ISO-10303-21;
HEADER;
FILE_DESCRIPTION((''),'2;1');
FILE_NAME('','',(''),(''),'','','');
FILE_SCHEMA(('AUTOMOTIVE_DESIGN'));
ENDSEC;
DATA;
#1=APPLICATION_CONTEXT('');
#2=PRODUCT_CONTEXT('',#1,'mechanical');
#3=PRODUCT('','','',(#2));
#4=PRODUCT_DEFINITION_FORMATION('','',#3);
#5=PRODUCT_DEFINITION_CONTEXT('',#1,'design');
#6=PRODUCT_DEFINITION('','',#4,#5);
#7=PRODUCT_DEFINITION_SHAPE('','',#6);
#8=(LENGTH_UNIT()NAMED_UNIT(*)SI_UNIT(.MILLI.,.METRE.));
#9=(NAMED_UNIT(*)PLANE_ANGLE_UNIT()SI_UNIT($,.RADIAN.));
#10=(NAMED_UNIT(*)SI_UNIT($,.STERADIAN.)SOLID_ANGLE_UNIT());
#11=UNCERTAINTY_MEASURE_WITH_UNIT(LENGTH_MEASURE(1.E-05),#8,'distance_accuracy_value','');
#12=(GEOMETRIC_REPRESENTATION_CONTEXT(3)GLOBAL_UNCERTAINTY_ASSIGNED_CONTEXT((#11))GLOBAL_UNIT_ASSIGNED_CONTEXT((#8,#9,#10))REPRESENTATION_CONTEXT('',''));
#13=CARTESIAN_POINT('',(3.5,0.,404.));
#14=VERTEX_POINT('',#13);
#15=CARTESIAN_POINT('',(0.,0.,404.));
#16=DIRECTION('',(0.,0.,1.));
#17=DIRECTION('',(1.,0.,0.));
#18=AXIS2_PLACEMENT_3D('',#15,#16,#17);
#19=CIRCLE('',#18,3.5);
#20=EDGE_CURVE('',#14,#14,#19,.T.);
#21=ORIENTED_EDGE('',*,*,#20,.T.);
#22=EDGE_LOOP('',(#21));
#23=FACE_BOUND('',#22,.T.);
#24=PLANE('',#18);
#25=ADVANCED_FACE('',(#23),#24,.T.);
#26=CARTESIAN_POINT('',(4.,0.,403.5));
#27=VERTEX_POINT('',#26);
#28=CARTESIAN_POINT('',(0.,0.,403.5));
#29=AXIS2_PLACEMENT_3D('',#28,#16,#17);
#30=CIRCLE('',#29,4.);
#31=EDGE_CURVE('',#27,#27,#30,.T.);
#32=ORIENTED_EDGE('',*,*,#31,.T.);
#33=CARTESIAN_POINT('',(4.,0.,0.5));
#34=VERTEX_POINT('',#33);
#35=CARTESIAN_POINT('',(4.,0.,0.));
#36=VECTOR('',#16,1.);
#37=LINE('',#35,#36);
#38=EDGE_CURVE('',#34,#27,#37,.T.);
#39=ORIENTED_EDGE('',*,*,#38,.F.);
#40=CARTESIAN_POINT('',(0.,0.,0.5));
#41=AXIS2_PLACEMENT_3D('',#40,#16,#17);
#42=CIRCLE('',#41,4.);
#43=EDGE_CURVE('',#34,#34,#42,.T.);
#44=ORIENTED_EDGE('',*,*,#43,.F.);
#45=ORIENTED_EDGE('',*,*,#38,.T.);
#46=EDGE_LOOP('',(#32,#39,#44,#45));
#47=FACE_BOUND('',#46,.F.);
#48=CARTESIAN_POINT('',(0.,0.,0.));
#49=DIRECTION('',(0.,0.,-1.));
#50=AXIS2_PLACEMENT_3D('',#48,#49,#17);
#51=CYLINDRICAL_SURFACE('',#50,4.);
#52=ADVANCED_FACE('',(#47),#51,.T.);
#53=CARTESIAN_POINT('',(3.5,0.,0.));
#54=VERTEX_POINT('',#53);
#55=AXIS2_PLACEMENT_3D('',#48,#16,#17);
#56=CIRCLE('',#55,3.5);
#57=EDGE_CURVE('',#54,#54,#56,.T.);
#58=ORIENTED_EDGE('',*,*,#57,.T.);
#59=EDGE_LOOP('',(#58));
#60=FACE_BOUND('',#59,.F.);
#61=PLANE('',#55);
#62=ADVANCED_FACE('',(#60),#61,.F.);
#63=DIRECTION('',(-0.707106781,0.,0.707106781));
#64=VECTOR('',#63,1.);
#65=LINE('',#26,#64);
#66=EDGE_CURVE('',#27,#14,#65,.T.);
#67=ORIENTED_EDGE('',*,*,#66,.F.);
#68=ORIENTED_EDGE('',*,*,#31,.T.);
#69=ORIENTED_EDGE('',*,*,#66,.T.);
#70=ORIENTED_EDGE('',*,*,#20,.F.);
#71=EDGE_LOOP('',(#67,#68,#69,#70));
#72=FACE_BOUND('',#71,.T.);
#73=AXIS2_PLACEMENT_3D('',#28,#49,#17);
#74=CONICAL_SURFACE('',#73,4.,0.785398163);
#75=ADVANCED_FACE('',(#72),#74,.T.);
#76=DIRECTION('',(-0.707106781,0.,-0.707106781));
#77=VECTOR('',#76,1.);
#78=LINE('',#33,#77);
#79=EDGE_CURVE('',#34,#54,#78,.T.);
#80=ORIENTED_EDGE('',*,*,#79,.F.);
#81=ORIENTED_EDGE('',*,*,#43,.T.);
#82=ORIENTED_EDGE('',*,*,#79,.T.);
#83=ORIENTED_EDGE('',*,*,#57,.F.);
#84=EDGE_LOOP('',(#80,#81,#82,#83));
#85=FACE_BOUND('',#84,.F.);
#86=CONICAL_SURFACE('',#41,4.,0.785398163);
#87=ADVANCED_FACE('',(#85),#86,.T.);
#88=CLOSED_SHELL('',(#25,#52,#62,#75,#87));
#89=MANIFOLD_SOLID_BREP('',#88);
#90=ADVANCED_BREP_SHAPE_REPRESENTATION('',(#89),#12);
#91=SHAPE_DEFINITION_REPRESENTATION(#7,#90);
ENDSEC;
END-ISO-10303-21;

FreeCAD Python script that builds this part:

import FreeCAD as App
import Part
import Sketcher

V = App.Vector


def edges_at(feature, points):
    """Names of the edges that pass closest to the given points."""
    edges = feature.Shape.Edges
    near = lambda p: min(range(len(edges)), key=lambda i: edges[i].distToShape(Part.Vertex(*p))[0])
    return sorted({f"Edge{near(p) + 1}" for p in points})

doc = App.newDocument("Part")
body = doc.addObject("PartDesign::Body", "Body")

sketch1 = doc.addObject("Sketcher::SketchObject", "Sketch")
body.addObject(sketch1)
sketch1.AttachmentSupport = (doc.XY_Plane, [""])
sketch1.MapMode = "FlatFace"
sketch1.addGeometry(Part.Circle(V(0, 0, 0), V(0, 0, 1), 4), False)
sketch1.addConstraint([
    Sketcher.Constraint("Coincident", 0, 3, -1, 1),
    Sketcher.Constraint("Diameter", 0, 8.0),
])
pad1 = doc.addObject("PartDesign::Pad", "Pad")
body.addObject(pad1)
pad1.Profile = sketch1
pad1.Length = 404
doc.recompute()

chamfer = doc.addObject("PartDesign::Chamfer", "Chamfer")
body.addObject(chamfer)
chamfer.Base = (pad1, edges_at(pad1, [(-4, 0, 0), (-4, 0, 404)]))
chamfer.Size = 0.5

doc.recompute()
